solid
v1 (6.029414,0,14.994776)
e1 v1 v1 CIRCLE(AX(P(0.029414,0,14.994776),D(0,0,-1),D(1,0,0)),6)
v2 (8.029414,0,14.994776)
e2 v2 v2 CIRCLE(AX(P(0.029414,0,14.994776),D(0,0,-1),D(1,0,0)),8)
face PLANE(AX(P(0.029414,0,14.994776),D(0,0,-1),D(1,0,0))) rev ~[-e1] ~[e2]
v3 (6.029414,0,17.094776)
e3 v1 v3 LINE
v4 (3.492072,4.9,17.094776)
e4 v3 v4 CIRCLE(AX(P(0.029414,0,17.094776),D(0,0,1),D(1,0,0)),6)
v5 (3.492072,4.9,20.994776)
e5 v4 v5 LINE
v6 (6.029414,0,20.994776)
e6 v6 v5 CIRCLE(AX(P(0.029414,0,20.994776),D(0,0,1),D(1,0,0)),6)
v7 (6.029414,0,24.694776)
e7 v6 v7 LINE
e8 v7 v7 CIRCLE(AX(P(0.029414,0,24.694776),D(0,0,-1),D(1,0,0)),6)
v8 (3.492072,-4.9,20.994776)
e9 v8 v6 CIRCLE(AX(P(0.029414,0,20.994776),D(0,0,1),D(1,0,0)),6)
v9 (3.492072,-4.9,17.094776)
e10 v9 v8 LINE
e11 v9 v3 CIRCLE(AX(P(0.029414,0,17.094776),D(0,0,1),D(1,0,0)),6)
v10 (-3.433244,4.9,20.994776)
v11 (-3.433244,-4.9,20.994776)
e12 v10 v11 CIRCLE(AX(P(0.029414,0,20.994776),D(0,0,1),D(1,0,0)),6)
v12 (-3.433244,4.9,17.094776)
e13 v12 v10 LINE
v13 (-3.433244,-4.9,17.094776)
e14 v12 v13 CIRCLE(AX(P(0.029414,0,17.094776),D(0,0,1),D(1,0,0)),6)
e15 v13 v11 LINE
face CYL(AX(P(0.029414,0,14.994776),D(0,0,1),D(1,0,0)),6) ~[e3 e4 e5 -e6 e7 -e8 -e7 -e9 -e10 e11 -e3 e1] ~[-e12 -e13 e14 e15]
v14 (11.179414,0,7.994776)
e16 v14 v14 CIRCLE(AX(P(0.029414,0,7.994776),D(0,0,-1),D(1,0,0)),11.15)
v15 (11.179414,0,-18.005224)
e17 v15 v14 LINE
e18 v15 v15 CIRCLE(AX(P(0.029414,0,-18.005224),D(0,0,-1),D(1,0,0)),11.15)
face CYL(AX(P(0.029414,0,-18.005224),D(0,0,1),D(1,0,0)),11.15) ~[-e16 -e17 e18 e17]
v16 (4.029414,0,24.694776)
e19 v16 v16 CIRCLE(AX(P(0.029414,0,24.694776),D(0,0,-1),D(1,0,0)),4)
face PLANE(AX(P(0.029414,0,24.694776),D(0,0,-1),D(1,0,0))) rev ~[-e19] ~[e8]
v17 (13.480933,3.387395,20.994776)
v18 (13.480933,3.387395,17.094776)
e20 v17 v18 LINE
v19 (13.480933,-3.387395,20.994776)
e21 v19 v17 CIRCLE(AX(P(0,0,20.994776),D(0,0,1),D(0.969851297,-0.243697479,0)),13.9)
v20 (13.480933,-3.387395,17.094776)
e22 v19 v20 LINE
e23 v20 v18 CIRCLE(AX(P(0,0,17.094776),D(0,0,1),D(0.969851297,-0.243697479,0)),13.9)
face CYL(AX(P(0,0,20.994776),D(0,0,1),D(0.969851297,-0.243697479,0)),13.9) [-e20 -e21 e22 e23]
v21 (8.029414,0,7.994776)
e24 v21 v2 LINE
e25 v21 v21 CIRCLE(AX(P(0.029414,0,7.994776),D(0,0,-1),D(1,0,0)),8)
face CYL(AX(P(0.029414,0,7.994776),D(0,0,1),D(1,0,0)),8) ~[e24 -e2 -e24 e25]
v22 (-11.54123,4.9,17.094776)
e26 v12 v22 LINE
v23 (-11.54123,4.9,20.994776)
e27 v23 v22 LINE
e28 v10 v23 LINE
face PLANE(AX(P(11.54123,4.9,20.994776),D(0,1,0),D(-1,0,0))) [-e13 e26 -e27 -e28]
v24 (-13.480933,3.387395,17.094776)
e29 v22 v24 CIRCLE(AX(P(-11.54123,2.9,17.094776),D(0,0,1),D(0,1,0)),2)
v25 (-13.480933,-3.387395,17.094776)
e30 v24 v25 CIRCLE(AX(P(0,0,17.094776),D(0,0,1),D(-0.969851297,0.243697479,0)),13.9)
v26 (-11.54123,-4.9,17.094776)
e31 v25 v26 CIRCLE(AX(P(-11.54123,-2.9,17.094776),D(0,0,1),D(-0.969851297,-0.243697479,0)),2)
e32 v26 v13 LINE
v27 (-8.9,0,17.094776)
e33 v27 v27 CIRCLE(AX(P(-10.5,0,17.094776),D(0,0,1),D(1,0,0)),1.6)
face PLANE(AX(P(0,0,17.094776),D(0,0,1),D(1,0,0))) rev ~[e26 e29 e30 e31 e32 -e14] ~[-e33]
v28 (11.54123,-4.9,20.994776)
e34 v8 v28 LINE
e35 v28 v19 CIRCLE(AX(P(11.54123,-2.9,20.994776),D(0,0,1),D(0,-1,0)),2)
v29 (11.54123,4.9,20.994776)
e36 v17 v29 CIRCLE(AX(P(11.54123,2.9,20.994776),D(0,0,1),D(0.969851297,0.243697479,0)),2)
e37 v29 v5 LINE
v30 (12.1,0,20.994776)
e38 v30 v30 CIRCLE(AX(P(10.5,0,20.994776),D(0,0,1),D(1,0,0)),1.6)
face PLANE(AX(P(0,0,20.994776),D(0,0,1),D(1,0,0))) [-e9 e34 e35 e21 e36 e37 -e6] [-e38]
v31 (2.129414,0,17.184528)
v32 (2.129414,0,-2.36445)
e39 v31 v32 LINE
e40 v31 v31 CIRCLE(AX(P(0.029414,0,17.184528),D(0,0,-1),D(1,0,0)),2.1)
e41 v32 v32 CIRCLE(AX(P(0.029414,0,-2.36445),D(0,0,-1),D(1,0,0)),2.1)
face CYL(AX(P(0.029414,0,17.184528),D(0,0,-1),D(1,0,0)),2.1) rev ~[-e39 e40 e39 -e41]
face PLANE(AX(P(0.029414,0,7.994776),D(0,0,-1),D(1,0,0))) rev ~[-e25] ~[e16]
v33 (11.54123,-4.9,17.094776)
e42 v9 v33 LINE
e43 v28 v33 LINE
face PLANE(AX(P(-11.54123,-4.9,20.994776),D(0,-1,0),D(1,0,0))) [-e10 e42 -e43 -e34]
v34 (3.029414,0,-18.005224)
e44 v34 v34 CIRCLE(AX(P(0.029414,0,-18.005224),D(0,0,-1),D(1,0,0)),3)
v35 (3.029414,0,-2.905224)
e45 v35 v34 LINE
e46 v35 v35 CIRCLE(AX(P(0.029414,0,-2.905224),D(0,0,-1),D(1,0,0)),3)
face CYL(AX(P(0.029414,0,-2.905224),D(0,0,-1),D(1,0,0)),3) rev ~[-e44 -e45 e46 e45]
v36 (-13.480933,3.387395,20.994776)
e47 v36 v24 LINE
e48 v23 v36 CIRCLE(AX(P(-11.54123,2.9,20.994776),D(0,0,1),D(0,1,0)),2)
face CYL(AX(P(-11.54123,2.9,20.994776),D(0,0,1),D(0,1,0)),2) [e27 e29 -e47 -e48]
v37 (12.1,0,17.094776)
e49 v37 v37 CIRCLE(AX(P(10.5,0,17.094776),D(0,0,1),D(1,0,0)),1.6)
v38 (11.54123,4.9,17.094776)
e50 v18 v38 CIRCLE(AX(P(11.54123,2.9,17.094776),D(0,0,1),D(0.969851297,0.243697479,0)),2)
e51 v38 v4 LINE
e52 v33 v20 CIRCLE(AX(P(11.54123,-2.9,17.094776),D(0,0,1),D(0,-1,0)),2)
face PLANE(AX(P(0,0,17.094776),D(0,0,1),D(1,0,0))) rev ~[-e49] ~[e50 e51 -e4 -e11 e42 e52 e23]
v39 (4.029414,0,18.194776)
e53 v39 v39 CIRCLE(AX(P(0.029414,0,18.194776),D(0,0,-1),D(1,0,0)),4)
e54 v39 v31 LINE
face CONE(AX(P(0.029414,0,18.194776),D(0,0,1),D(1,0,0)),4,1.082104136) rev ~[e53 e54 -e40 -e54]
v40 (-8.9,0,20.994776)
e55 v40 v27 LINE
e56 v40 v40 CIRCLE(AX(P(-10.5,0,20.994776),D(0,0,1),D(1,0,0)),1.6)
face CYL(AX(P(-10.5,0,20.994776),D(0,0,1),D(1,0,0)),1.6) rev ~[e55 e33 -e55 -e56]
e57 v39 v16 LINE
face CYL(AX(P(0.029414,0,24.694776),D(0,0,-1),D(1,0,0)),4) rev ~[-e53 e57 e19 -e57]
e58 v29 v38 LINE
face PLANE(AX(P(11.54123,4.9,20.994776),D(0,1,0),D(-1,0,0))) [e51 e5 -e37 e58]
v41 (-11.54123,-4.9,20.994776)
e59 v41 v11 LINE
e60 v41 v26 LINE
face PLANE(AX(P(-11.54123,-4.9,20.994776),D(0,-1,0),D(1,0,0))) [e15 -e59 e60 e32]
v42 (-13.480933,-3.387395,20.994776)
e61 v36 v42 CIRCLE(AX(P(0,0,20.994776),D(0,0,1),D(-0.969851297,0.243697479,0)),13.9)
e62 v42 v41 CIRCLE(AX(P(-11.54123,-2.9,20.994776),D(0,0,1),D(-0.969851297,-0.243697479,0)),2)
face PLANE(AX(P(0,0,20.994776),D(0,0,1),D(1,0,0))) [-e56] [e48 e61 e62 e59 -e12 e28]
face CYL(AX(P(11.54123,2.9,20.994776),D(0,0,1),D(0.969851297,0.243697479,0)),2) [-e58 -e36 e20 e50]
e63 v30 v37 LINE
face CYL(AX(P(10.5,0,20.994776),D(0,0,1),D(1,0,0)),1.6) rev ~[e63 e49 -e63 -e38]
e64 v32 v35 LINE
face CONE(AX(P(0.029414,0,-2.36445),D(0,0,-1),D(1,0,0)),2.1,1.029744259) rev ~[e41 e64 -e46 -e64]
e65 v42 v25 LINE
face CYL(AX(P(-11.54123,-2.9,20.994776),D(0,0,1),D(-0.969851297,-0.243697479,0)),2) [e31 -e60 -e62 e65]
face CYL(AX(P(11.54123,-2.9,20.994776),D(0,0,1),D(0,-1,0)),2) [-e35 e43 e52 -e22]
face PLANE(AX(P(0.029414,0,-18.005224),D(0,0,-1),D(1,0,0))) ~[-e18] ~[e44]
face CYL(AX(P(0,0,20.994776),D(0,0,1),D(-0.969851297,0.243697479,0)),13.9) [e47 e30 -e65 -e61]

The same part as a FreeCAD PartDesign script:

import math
import FreeCAD as App
import Part
import Sketcher
Q = App.Units.Quantity

doc = App.newDocument("Part")
params = doc.addObject("Spreadsheet::Sheet", "Params")
for row, (alias, value) in enumerate([
    ("sketch1_width", "2 mm"),
    ("sketch1_height", "26 mm"),
    ("sketch1_height2", "7 mm"),
    ("sketch1_height3", "15.1 mm"),
    ("sketch1_height4", "9.7 mm"),
    ("revolution_angle", "360 deg"),
    ("sketch2_diameter", "8 mm"),
    ("sketch2_radius", "2 mm"),
    ("sketch2_radius2", "13.9 mm"),
    ("pad1_length", "3.9 mm"),
    ("sketch3_diameter", "3.2 mm"),
    ("pocket1_length", "3.9 mm"),
], start=1):
    params.set(f"A{row}", alias)
    params.set(f"B{row}", "=" + value)
    params.setAlias(f"B{row}", alias)

body = doc.addObject("PartDesign::Body", "Body")

# Sketch on XZ plane
sketch1 = body.newObject("Sketcher::SketchObject", "Sketch")
sketch1.AttachmentSupport = (doc.getObject("XZ_Plane"), [""])
sketch1.MapMode = "FlatFace"
sketch1.addGeometry([
    Part.LineSegment(App.Vector(3, -2.9, 0), App.Vector(3, -18, 0)),  # 0
    Part.LineSegment(App.Vector(3, -18, 0), App.Vector(11.2, -18, 0)),  # 1
    Part.LineSegment(App.Vector(11.2, -18, 0), App.Vector(11.2, 8, 0)),  # 2
    Part.LineSegment(App.Vector(11.2, 8, 0), App.Vector(8, 8, 0)),  # 3
    Part.LineSegment(App.Vector(8, 8, 0), App.Vector(8, 15, 0)),  # 4
    Part.LineSegment(App.Vector(8, 15, 0), App.Vector(6, 15, 0)),  # 5
    Part.LineSegment(App.Vector(6, 15, 0), App.Vector(6, 24.7, 0)),  # 6
    Part.LineSegment(App.Vector(6, 24.7, 0), App.Vector(4, 24.7, 0)),  # 7
    Part.LineSegment(App.Vector(4, 24.7, 0), App.Vector(4, 18.2, 0)),  # 8
    Part.LineSegment(App.Vector(4, 18.2, 0), App.Vector(2.1, 17.2, 0)),  # 9
    Part.LineSegment(App.Vector(2.1, 17.2, 0), App.Vector(2.1, -2.4, 0)),  # 10
    Part.LineSegment(App.Vector(2.1, -2.4, 0), App.Vector(3, -2.9, 0)),  # 11
], False)
sketch1.addGeometry(Part.LineSegment(App.Vector(0, 24.7, 0), App.Vector(0, -18, 0)), True)  # axis
sketch1.addConstraint([
    Sketcher.Constraint("Coincident", 0, 2, 1, 1),
    Sketcher.Constraint("Coincident", 1, 2, 2, 1),
    Sketcher.Constraint("Coincident", 2, 2, 3, 1),
    Sketcher.Constraint("Coincident", 3, 2, 4, 1),
    Sketcher.Constraint("Coincident", 4, 2, 5, 1),
    Sketcher.Constraint("Coincident", 5, 2, 6, 1),
    Sketcher.Constraint("Coincident", 6, 2, 7, 1),
    Sketcher.Constraint("Coincident", 7, 2, 8, 1),
    Sketcher.Constraint("Coincident", 8, 2, 9, 1),
    Sketcher.Constraint("Coincident", 9, 2, 10, 1),
    Sketcher.Constraint("Coincident", 10, 2, 11, 1),
    Sketcher.Constraint("Coincident", 11, 2, 0, 1),
    Sketcher.Constraint("Vertical", 0),
    Sketcher.Constraint("Horizontal", 1),
    Sketcher.Constraint("Vertical", 2),
    Sketcher.Constraint("Horizontal", 3),
    Sketcher.Constraint("Vertical", 4),
    Sketcher.Constraint("Horizontal", 5),
    Sketcher.Constraint("Vertical", 6),
    Sketcher.Constraint("Horizontal", 7),
    Sketcher.Constraint("Vertical", 8),
    Sketcher.Constraint("Vertical", 10),
    Sketcher.Constraint("Vertical", 12),
    Sketcher.Constraint("Horizontal", 7, 2, 12, 1),
    Sketcher.Constraint("Horizontal", 1, 2, 12, 2),
    Sketcher.Constraint("Equal", 5, 7),
    Sketcher.Constraint("DistanceX", 5, 2, 5, 1, Q("2 mm")),
    Sketcher.Constraint("DistanceY", 2, 1, 2, 2, Q("26 mm")),
    Sketcher.Constraint("DistanceY", 4, 1, 4, 2, Q("7 mm")),
    Sketcher.Constraint("Angle", 9, Q("-152 deg")),
    Sketcher.Constraint("Angle", 11, Q("-31 deg")),
    Sketcher.Constraint("DistanceY", 0, 2, 0, 1, Q("15.1 mm")),
    Sketcher.Constraint("DistanceY", 6, 1, 6, 2, Q("9.7 mm")),
    Sketcher.Constraint("DistanceY", 8, 2, 8, 1, Q("6.5 mm")),
    Sketcher.Constraint("DistanceX", 0, 2, 3, 2, Q("5 mm")),
    Sketcher.Constraint("DistanceX", 12, 1, 7, 2, Q("4 mm")),
    Sketcher.Constraint("DistanceX", 1, 1, 1, 2, Q("8.15 mm")),
    Sketcher.Constraint("DistanceX", 9, 2, 8, 2, Q("1.9 mm")),
    Sketcher.Constraint("DistanceY", 10, 2, -1, 1, Q("2.36445 mm")),
    Sketcher.Constraint("DistanceX", -1, 1, 0, 2, Q("3.029414 mm")),
])
sketch1.setExpression("Constraints[26]", "Params.sketch1_width")
sketch1.setExpression("Constraints[27]", "Params.sketch1_height")
sketch1.setExpression("Constraints[28]", "Params.sketch1_height2")
sketch1.setExpression("Constraints[31]", "Params.sketch1_height3")
sketch1.setExpression("Constraints[32]", "Params.sketch1_height4")
revolution = body.newObject("PartDesign::Revolution", "Revolution")
revolution.Profile = sketch1
revolution.ReferenceAxis = (sketch1, ["Axis0"])
revolution.setExpression("Angle", "Params.revolution_angle")

# Sketch on XY plane
sketch2 = body.newObject("Sketcher::SketchObject", "Sketch001")
sketch2.AttachmentSupport = (doc.getObject("XY_Plane"), [""])
sketch2.MapMode = "FlatFace"
sketch2.AttachmentOffset = App.Placement(App.Vector(0, 0, 20.994776), App.Rotation())
sketch2.addGeometry([
    Part.ArcOfCircle(Part.Circle(App.Vector(-11.5, 2.9, 0), App.Vector(0, 0, 1), 2), math.radians(90), math.radians(166)),  # 0
    Part.ArcOfCircle(Part.Circle(App.Vector(0, 0, 0), App.Vector(0, 0, 1), 13.9), math.radians(166), math.radians(194)),  # 1
    Part.ArcOfCircle(Part.Circle(App.Vector(-11.5, -2.9, 0), App.Vector(0, 0, 1), 2), math.radians(-166), math.radians(-90)),  # 2
    Part.LineSegment(App.Vector(-11.5, -4.9, 0), App.Vector(11.5, -4.9, 0)),  # 3
    Part.ArcOfCircle(Part.Circle(App.Vector(11.5, -2.9, 0), App.Vector(0, 0, 1), 2), math.radians(-90), math.radians(-14)),  # 4
    Part.ArcOfCircle(Part.Circle(App.Vector(0, 0, 0), App.Vector(0, 0, 1), 13.9), math.radians(-14), math.radians(14)),  # 5
    Part.ArcOfCircle(Part.Circle(App.Vector(11.5, 2.9, 0), App.Vector(0, 0, 1), 2), math.radians(14), math.radians(90)),  # 6
    Part.LineSegment(App.Vector(11.5, 4.9, 0), App.Vector(-11.5, 4.9, 0)),  # 7
    Part.Circle(App.Vector(0, 0, 0), App.Vector(0, 0, 1), 4),  # 8
], False)
sketch2.addConstraint([
    Sketcher.Constraint("Tangent", 0, 2, 1, 1),
    Sketcher.Constraint("Tangent", 1, 2, 2, 1),
    Sketcher.Constraint("Tangent", 2, 2, 3, 1),
    Sketcher.Constraint("Tangent", 3, 2, 4, 1),
    Sketcher.Constraint("Tangent", 4, 2, 5, 1),
    Sketcher.Constraint("Tangent", 5, 2, 6, 1),
    Sketcher.Constraint("Tangent", 6, 2, 7, 1),
    Sketcher.Constraint("Tangent", 7, 2, 0, 1),
    Sketcher.Constraint("Horizontal", 3),
    Sketcher.Constraint("Horizontal", 7),
    Sketcher.Constraint("Coincident", 1, 3, -1, 1),
    Sketcher.Constraint("Coincident", 5, 3, -1, 1),
    Sketcher.Constraint("Equal", 0, 2),
    Sketcher.Constraint("Equal", 2, 4),
    Sketcher.Constraint("Equal", 1, 5),
    Sketcher.Constraint("Equal", 4, 6),
    Sketcher.Constraint("PointOnObject", 8, 3, -1),
    Sketcher.Constraint("Vertical", 0, 3, 2, 3),
    Sketcher.Constraint("Diameter", 8, Q("8 mm")),
    Sketcher.Constraint("Radius", 0, Q("2 mm")),
    Sketcher.Constraint("Radius", 1, Q("13.9 mm")),
    Sketcher.Constraint("DistanceY", -1, 1, 0, 3, Q("2.9 mm")),
    Sketcher.Constraint("DistanceX", 8, 3, 4, 2, Q("13.451519 mm")),
])
sketch2.setExpression("Constraints[18]", "Params.sketch2_diameter")
sketch2.setExpression("Constraints[19]", "Params.sketch2_radius")
sketch2.setExpression("Constraints[20]", "Params.sketch2_radius2")
pad1 = body.newObject("PartDesign::Pad", "Pad")
pad1.Profile = sketch2
pad1.setExpression("Length", "Params.pad1_length")
pad1.Reversed = True

# Sketch on XY plane
sketch3 = body.newObject("Sketcher::SketchObject", "Sketch002")
sketch3.AttachmentSupport = (doc.getObject("XY_Plane"), [""])
sketch3.MapMode = "FlatFace"
sketch3.AttachmentOffset = App.Placement(App.Vector(0, 0, 20.994776), App.Rotation())
sketch3.addGeometry([
    Part.Circle(App.Vector(-10.5, 0, 0), App.Vector(0, 0, 1), 1.6),
    Part.Circle(App.Vector(10.5, 0, 0), App.Vector(0, 0, 1), 1.6),
], False)
sketch3.addConstraint([
    Sketcher.Constraint("Equal", 0, 1),
    Sketcher.Constraint("Symmetric", 0, 3, 1, 3, -1, 1),
    Sketcher.Constraint("PointOnObject", 0, 3, -1),
    Sketcher.Constraint("Diameter", 0, Q("3.2 mm")),
    Sketcher.Constraint("DistanceX", 0, 3, 1, 3, Q("21 mm")),
])
sketch3.setExpression("Constraints[3]", "Params.sketch3_diameter")
pocket1 = body.newObject("PartDesign::Pocket", "Pocket")
pocket1.Profile = sketch3
pocket1.setExpression("Length", "Params.pocket1_length")

doc.recompute()
